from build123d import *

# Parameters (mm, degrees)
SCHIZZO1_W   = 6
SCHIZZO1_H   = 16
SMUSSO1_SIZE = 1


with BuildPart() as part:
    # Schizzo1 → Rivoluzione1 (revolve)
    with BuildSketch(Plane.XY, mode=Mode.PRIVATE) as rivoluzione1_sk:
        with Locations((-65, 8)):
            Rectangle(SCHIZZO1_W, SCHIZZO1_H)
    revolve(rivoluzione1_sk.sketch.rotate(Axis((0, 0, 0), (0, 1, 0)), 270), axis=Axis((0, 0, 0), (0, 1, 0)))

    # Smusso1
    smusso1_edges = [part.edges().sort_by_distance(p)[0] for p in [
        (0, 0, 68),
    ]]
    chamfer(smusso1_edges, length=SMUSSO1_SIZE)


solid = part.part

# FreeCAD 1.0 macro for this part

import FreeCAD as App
import Part
import Sketcher

V = App.Vector
Q = App.Units.Quantity


def edges_at(feature, points):
    """Names of the edges that pass closest to the given points."""
    edges = feature.Shape.Edges
    near = lambda p: min(range(len(edges)), key=lambda i: edges[i].distToShape(Part.Vertex(*p))[0])
    return sorted({f"Edge{near(p) + 1}" for p in points})

doc = App.newDocument("Part")
params = doc.addObject("Spreadsheet::Sheet", "Params")
for row, (alias, value) in enumerate([
    ("sketch1_width", "6 mm"),
    ("sketch1_height", "16 mm"),
    ("revolution_angle", "360 deg"),
    ("chamfer_size", "1 mm"),
], start=1):
    params.set(f"A{row}", alias)
    params.set(f"B{row}", "=" + value)
    params.setAlias(f"B{row}", alias)

body = doc.addObject("PartDesign::Body", "Body")

sketch1 = doc.addObject("Sketcher::SketchObject", "Sketch")
body.addObject(sketch1)
sketch1.AttachmentSupport = (doc.XY_Plane, [""])
sketch1.MapMode = "FlatFace"
sketch1.addGeometry(Part.LineSegment(V(-68, 16, 0), V(-68, 0, 0)), False)
sketch1.addGeometry(Part.LineSegment(V(-68, 0, 0), V(-62, 0, 0)), False)
sketch1.addGeometry(Part.LineSegment(V(-62, 0, 0), V(-62, 16, 0)), False)
sketch1.addGeometry(Part.LineSegment(V(-62, 16, 0), V(-68, 16, 0)), False)
sketch1.addConstraint(Sketcher.Constraint("Coincident", 0, 2, 1, 1))
sketch1.addConstraint(Sketcher.Constraint("Coincident", 1, 2, 2, 1))
sketch1.addConstraint(Sketcher.Constraint("Coincident", 2, 2, 3, 1))
sketch1.addConstraint(Sketcher.Constraint("Coincident", 3, 2, 0, 1))
sketch1.addConstraint(Sketcher.Constraint("Vertical", 0))
sketch1.addConstraint(Sketcher.Constraint("Horizontal", 1))
sketch1.addConstraint(Sketcher.Constraint("Vertical", 2))
sketch1.addConstraint(Sketcher.Constraint("Horizontal", 3))
sketch1.addConstraint(Sketcher.Constraint("PointOnObject", 0, 2, -1))
sketch1.addConstraint(Sketcher.Constraint("DistanceX", 1, 1, 1, 2, Q("6 mm")))
sketch1.addConstraint(Sketcher.Constraint("DistanceY", 0, 2, 0, 1, Q("16 mm")))
sketch1.addConstraint(Sketcher.Constraint("DistanceX", 0, 2, -1, 1, Q("68 mm")))
sketch1.setExpression("Constraints[9]", "Params.sketch1_width")
sketch1.setExpression("Constraints[10]", "Params.sketch1_height")
revolution = doc.addObject("PartDesign::Revolution", "Revolution")
body.addObject(revolution)
revolution.Profile = sketch1
revolution.ReferenceAxis = (sketch1, ["V_Axis"])
revolution.setExpression("Angle", "Params.revolution_angle")
doc.recompute()

chamfer = doc.addObject("PartDesign::Chamfer", "Chamfer")
body.addObject(chamfer)
chamfer.Base = (revolution, edges_at(revolution, [(0, 0, 68)]))
chamfer.setExpression("Size", "Params.chamfer_size")

doc.recompute()
